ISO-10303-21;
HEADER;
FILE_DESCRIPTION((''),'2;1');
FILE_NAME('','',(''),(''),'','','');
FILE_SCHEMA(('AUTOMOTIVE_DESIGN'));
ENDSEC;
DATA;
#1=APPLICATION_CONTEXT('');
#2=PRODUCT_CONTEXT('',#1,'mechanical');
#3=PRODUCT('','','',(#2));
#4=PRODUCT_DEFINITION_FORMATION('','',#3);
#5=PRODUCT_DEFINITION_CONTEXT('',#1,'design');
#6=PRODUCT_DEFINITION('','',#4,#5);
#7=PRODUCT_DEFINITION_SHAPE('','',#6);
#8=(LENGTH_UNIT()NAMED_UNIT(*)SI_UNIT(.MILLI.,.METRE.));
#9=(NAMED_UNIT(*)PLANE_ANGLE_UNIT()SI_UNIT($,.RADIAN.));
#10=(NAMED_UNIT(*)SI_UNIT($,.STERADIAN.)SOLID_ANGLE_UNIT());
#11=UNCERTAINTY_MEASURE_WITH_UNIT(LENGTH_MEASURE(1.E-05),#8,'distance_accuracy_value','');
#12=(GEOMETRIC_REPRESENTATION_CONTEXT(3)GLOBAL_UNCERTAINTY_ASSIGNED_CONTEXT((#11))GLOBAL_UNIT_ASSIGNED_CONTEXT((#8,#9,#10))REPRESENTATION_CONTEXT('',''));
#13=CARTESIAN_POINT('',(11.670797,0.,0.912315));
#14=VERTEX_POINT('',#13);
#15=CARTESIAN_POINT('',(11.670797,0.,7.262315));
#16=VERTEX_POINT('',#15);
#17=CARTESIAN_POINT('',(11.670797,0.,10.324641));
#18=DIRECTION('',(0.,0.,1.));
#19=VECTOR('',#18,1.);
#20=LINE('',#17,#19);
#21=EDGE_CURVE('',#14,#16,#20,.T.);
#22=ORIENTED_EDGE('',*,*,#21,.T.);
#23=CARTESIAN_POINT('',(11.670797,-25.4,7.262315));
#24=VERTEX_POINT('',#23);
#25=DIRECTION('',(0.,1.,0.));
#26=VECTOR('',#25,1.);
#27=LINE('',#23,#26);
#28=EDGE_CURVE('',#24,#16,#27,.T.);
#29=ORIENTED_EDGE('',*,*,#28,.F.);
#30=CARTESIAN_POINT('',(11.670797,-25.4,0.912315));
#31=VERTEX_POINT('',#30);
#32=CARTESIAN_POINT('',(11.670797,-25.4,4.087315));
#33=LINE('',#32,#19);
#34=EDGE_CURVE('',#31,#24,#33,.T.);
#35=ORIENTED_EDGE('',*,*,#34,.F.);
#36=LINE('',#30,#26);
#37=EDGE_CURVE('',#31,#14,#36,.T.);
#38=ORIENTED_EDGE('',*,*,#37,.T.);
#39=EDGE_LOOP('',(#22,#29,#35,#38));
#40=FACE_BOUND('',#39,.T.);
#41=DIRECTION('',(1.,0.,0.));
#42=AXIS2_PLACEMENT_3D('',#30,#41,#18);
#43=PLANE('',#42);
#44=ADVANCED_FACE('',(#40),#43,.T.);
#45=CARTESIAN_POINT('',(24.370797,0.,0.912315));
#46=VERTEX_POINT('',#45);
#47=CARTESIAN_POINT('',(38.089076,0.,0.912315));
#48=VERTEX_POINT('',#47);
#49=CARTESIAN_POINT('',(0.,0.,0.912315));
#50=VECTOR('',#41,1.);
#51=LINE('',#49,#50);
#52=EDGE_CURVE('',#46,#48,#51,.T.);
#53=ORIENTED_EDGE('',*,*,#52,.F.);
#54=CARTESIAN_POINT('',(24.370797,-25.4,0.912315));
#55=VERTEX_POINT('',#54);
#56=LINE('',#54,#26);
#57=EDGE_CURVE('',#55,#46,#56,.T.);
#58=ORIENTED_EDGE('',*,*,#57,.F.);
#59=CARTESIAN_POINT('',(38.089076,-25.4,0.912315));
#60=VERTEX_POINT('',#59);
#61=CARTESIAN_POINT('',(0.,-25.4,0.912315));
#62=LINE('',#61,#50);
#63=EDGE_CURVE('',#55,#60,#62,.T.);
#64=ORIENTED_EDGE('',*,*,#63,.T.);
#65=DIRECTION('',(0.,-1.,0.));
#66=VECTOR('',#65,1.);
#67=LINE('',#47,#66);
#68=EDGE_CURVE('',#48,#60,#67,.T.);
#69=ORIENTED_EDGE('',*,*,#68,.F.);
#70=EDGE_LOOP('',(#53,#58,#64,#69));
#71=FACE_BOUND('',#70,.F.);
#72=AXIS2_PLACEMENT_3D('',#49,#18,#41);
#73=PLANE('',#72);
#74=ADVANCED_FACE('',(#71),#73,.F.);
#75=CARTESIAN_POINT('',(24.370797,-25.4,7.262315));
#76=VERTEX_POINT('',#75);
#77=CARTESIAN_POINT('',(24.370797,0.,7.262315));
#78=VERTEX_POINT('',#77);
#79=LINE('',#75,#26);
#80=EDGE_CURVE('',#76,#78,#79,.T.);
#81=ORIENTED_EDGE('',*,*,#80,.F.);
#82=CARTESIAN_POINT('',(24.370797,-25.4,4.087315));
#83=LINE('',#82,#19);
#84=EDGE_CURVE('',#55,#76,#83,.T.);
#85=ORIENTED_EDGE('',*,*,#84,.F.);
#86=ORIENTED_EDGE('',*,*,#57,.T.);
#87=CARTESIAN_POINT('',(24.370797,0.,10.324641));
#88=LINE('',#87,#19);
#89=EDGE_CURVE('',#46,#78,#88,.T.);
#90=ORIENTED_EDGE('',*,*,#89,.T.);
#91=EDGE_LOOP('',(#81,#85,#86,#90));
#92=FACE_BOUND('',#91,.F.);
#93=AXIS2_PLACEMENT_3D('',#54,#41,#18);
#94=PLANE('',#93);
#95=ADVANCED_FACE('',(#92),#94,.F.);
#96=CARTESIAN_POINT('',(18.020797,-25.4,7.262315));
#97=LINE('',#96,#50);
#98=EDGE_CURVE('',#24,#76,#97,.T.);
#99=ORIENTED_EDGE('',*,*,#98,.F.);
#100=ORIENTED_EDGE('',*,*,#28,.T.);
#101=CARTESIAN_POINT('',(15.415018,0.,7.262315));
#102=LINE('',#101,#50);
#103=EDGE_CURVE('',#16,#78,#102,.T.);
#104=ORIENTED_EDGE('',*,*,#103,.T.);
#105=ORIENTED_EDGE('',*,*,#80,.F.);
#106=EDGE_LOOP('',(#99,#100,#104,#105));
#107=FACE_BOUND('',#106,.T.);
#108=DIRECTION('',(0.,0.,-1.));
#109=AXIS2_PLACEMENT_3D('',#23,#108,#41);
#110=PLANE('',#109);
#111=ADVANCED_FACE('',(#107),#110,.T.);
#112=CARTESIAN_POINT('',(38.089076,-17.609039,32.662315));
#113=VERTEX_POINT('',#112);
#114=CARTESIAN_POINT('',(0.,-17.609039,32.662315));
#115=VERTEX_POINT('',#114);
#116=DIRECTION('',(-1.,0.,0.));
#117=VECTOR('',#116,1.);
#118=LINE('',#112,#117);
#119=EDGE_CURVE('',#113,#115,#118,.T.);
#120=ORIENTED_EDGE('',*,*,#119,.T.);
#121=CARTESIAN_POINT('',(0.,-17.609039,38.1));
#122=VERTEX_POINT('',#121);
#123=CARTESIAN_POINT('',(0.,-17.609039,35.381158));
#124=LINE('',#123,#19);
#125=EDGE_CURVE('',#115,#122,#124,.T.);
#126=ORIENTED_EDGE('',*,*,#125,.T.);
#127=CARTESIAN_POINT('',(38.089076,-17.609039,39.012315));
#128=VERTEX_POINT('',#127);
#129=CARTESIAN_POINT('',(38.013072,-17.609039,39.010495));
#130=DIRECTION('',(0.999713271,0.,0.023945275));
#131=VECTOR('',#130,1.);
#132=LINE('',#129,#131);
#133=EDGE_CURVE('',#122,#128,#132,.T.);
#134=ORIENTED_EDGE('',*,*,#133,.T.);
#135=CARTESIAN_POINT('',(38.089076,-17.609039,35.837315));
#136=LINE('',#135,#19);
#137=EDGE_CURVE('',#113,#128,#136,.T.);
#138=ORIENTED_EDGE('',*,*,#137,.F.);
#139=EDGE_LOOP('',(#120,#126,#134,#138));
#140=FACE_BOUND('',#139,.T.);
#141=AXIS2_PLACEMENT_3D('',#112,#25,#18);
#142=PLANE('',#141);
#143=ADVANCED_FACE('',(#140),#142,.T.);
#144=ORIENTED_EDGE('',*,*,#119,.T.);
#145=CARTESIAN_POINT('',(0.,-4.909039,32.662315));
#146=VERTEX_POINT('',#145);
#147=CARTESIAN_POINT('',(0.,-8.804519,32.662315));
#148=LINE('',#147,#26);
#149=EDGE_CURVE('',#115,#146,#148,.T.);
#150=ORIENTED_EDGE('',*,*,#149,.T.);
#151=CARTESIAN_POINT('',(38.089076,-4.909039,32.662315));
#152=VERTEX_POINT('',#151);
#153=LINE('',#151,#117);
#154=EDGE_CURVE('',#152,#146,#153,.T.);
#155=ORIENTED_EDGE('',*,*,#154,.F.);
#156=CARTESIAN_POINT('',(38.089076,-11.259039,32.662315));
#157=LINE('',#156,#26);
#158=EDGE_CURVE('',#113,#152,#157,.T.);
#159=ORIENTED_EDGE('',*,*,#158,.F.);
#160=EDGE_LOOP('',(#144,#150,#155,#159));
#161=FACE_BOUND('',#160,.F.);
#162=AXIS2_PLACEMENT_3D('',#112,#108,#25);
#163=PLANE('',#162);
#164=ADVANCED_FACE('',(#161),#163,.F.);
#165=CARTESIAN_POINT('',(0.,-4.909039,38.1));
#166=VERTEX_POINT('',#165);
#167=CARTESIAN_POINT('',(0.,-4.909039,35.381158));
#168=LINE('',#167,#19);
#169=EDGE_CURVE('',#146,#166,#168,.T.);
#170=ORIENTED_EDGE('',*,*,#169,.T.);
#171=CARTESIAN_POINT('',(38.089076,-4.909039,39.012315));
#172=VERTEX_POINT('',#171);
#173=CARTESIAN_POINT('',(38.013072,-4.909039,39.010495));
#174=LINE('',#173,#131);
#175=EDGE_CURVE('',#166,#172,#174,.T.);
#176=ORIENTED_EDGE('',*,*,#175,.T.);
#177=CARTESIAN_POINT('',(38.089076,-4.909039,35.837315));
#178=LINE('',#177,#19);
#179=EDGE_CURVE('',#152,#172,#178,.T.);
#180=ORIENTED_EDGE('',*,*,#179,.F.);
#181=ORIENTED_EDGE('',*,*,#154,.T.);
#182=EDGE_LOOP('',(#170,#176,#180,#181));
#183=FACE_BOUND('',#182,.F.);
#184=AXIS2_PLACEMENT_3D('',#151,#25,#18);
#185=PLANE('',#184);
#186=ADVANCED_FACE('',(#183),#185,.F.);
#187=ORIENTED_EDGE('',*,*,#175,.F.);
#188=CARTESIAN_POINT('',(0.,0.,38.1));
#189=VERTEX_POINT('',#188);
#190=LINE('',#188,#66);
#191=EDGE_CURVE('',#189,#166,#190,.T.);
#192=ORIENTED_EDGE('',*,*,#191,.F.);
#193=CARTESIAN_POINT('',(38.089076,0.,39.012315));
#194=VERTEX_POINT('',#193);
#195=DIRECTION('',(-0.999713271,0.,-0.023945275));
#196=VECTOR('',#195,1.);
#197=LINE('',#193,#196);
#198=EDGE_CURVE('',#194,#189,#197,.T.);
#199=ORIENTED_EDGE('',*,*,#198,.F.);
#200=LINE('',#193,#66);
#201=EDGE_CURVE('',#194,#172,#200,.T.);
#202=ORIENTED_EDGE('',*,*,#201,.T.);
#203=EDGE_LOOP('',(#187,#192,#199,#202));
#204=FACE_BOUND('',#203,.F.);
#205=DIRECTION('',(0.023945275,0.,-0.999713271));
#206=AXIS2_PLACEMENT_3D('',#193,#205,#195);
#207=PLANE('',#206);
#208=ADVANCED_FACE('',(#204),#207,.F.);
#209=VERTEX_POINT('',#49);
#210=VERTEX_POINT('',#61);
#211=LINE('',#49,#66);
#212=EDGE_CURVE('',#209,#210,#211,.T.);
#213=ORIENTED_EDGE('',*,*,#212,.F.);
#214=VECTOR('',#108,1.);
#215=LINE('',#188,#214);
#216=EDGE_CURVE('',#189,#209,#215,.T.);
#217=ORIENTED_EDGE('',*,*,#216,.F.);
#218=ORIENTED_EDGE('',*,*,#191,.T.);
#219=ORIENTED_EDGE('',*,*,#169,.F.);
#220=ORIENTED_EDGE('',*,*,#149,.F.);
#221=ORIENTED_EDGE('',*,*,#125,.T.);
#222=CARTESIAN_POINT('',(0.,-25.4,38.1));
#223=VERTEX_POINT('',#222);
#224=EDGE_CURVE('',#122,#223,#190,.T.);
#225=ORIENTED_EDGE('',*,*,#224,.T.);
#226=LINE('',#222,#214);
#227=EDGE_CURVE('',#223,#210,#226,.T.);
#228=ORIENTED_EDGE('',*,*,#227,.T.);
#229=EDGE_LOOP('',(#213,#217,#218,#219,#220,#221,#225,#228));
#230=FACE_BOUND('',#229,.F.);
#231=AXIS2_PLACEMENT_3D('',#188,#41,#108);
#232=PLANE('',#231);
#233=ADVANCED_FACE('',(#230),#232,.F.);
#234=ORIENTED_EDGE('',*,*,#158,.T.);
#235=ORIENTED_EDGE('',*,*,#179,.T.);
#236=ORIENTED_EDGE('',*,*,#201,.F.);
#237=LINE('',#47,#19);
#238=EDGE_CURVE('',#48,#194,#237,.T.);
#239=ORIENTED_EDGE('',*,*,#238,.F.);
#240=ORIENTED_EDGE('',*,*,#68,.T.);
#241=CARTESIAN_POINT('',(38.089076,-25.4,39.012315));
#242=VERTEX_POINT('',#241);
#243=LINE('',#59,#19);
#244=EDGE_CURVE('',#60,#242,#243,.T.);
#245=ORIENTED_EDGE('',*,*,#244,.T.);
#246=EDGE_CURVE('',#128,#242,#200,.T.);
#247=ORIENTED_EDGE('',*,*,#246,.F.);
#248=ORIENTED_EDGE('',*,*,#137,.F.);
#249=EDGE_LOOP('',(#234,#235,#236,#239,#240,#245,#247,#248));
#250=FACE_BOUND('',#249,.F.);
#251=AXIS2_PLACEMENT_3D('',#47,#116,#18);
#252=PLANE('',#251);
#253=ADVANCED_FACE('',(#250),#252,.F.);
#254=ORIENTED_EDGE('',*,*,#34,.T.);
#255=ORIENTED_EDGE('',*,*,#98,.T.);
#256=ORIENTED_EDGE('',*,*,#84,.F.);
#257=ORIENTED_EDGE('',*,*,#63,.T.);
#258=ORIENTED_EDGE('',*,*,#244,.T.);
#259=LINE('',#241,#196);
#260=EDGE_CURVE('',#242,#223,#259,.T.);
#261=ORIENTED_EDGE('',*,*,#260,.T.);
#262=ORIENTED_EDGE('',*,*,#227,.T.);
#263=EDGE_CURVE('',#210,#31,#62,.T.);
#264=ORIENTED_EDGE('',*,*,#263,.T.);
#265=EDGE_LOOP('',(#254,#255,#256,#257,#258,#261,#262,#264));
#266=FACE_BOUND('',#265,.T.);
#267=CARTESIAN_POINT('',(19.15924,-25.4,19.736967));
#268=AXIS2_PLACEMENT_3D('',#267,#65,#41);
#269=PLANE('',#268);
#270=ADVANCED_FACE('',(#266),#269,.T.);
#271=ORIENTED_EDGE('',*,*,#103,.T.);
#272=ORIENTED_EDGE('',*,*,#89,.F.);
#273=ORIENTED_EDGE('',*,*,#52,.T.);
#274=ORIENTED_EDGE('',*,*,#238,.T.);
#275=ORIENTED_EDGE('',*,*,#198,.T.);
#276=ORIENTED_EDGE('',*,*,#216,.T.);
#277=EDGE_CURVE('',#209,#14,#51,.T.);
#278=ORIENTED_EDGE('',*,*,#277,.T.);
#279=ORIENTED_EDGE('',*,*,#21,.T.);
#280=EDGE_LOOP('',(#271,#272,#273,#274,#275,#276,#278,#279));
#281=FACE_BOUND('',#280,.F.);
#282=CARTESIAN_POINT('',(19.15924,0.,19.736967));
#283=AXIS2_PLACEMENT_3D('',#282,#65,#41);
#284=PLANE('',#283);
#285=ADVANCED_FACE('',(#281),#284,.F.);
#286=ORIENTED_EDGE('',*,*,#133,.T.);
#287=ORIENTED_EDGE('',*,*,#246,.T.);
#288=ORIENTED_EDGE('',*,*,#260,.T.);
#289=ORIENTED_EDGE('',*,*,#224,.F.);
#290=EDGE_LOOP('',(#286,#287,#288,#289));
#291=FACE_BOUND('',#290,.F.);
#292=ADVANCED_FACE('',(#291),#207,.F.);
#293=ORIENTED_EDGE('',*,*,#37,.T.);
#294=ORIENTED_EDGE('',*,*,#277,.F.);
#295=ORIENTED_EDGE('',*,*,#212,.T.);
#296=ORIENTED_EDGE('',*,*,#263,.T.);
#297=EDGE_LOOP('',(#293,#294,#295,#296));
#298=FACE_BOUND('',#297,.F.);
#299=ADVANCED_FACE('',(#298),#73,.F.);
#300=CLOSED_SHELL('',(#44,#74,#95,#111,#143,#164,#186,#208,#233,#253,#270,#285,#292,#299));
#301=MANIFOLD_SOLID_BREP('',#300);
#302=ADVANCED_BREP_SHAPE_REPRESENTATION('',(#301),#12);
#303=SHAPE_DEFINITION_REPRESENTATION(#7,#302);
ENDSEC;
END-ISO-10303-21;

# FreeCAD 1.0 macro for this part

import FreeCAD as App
import Part
import Sketcher
from FreeCAD import Vector
Q = App.Units.Quantity


def add_polygon(sketch, points):
    """Adds a closed chain of lines whose ends are joined by coincident constraints."""
    first, n = sketch.GeometryCount, len(points)
    for a, b in zip(points, points[1:] + points[:1]):
        sketch.addGeometry(Part.LineSegment(App.Vector(*a, 0), App.Vector(*b, 0)), False)
    for i in range(n):
        sketch.addConstraint(Sketcher.Constraint("Coincident", first + i, 2, first + (i + 1) % n, 1))

doc = App.newDocument("Part")
body = doc.addObject("PartDesign::Body", "Body")

# Sketch on XZ plane
sketch1 = body.newObject("Sketcher::SketchObject", "Sketch")
sketch1.AttachmentSupport = (doc.getObject("XZ_Plane"), [""])
sketch1.MapMode = "FlatFace"
add_polygon(sketch1, [(38, 39), (0, 38), (0, 1), (38, 1)])  # lines 0-3
sketch1.addConstraint(Sketcher.Constraint("Vertical", 1))
sketch1.addConstraint(Sketcher.Constraint("Horizontal", 2))
sketch1.addConstraint(Sketcher.Constraint("Vertical", 3))
sketch1.addConstraint(Sketcher.Constraint("PointOnObject", 0, 2, -2))
sketch1.addConstraint(Sketcher.Constraint("DistanceY", 3, 1, 3, 2, Q("1.5 in")))
sketch1.addConstraint(Sketcher.Constraint("Distance", 0, Q("1.5 in")))
sketch1.addConstraint(Sketcher.Constraint("DistanceY", -1, 1, 0, 2, Q("1.5 in")))
sketch1.addConstraint(Sketcher.Constraint("DistanceX", 2, 1, 2, 2, Q("38.089076 mm")))
pad1 = body.newObject("PartDesign::Pad", "Pad")
pad1.Profile = sketch1
pad1.Length = Q("1 in")

# Sketch on XZ plane
sketch2 = body.newObject("Sketcher::SketchObject", "Sketch001")
sketch2.AttachmentSupport = (doc.getObject("XZ_Plane"), [""])
sketch2.MapMode = "FlatFace"
sketch2.AttachmentOffset = App.Placement(Vector(0, 0, 1 * 25.4), App.Rotation())
add_polygon(sketch2, [(12, 7), (12, 1), (24, 1), (24, 7)])  # lines 0-3
sketch2.addConstraint(Sketcher.Constraint("Vertical", 0))
sketch2.addConstraint(Sketcher.Constraint("Horizontal", 1))
sketch2.addConstraint(Sketcher.Constraint("Vertical", 2))
sketch2.addConstraint(Sketcher.Constraint("Horizontal", 3))
sketch2.addConstraint(Sketcher.Constraint("DistanceX", 1, 1, 1, 2, Q("0.5 in")))
sketch2.addConstraint(Sketcher.Constraint("DistanceY", 0, 2, 0, 1, Q("0.25 in")))
sketch2.addConstraint(Sketcher.Constraint("DistanceX", -1, 1, 0, 2, Q("11.670797 mm")))
sketch2.addConstraint(Sketcher.Constraint("DistanceY", -1, 1, 0, 2, Q("0.912315 mm")))
pocket1 = body.newObject("PartDesign::Pocket", "Pocket")
pocket1.Profile = sketch2
pocket1.Type = "ThroughAll"

# Sketch on YZ plane
sketch3 = body.newObject("Sketcher::SketchObject", "Sketch002")
sketch3.AttachmentSupport = (doc.getObject("YZ_Plane"), [""])
sketch3.MapMode = "FlatFace"
sketch3.AttachmentOffset = App.Placement(Vector(0, 0, 38.089076), App.Rotation())
add_polygon(sketch3, [(-18, 39), (-18, 33), (-5, 33), (-5, 39)])  # lines 0-3
sketch3.addConstraint(Sketcher.Constraint("Vertical", 0))
sketch3.addConstraint(Sketcher.Constraint("Horizontal", 1))
sketch3.addConstraint(Sketcher.Constraint("Vertical", 2))
sketch3.addConstraint(Sketcher.Constraint("Horizontal", 3))
sketch3.addConstraint(Sketcher.Constraint("DistanceX", 1, 1, 1, 2, Q("0.5 in")))
sketch3.addConstraint(Sketcher.Constraint("DistanceY", 0, 2, 0, 1, Q("0.25 in")))
sketch3.addConstraint(Sketcher.Constraint("DistanceX", 0, 2, -1, 1, Q("17.609039 mm")))
sketch3.addConstraint(Sketcher.Constraint("DistanceY", -1, 1, 0, 2, Q("32.662315 mm")))
pocket2 = body.newObject("PartDesign::Pocket", "Pocket001")
pocket2.Profile = sketch3
pocket2.Type = "ThroughAll"

doc.recompute()
